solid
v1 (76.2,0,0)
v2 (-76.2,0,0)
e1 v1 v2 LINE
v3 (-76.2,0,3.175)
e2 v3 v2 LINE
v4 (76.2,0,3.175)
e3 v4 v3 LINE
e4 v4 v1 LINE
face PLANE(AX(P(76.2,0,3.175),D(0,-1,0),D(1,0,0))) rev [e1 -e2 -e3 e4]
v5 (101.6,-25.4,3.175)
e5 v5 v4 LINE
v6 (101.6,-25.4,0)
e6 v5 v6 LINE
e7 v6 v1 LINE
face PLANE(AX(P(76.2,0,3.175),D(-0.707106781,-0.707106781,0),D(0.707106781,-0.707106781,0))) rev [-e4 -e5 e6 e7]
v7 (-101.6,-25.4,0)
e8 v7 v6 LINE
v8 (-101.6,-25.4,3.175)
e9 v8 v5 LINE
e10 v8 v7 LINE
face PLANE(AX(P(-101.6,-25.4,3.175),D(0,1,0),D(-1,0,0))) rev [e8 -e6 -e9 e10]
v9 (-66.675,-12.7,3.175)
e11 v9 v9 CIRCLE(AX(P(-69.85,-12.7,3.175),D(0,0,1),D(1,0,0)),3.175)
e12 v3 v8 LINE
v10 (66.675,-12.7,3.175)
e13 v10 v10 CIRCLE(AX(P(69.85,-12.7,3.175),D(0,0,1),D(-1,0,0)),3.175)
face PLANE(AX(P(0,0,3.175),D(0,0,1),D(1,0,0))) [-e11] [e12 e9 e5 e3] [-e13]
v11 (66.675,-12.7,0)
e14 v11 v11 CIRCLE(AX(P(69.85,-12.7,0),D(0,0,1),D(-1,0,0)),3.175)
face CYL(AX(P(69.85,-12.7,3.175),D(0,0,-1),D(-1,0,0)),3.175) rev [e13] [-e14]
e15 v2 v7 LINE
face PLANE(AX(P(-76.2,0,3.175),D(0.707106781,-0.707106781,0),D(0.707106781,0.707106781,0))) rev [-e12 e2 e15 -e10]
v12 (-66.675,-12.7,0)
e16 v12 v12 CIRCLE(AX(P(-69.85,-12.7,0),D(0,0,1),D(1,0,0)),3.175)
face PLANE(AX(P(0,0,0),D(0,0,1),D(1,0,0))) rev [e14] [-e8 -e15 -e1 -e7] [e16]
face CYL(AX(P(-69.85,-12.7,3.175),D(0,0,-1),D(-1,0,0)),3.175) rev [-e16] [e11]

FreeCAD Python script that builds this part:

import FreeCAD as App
import Part
import Sketcher
from FreeCAD import Vector
Q = App.Units.Quantity

doc = App.newDocument("Part")
body = doc.addObject("PartDesign::Body", "Body")

# Sketch on XY plane
sketch1 = doc.addObject("Sketcher::SketchObject", "Sketch")
body.addObject(sketch1)
sketch1.AttachmentSupport = (doc.XY_Plane, [""])
sketch1.MapMode = "FlatFace"
sketch1.addGeometry(Part.LineSegment(Vector(76.2, 0, 0), Vector(-76.2, 0, 0)), False)
sketch1.addGeometry(Part.LineSegment(Vector(-76.2, 0, 0), Vector(-101.6, -25.4, 0)), False)
sketch1.addGeometry(Part.LineSegment(Vector(-101.6, -25.4, 0), Vector(101.6, -25.4, 0)), False)
sketch1.addGeometry(Part.LineSegment(Vector(101.6, -25.4, 0), Vector(76.2, 0, 0)), False)
sketch1.addGeometry(Part.Circle(Vector(-69.8, -12.7, 0), Vector(0, 0, 1), 3.2), False)
sketch1.addGeometry(Part.Circle(Vector(69.8, -12.7, 0), Vector(0, 0, 1), 3.2), False)
sketch1.addConstraint(Sketcher.Constraint("Coincident", 0, 2, 1, 1))
sketch1.addConstraint(Sketcher.Constraint("Coincident", 1, 2, 2, 1))
sketch1.addConstraint(Sketcher.Constraint("Coincident", 2, 2, 3, 1))
sketch1.addConstraint(Sketcher.Constraint("Coincident", 3, 2, 0, 1))
sketch1.addConstraint(Sketcher.Constraint("Horizontal", 0))
sketch1.addConstraint(Sketcher.Constraint("Horizontal", 2))
sketch1.addConstraint(Sketcher.Constraint("Equal", 4, 5))
sketch1.addConstraint(Sketcher.Constraint("Symmetric", 0, 2, 3, 2, -1, 1))
sketch1.addConstraint(Sketcher.Constraint("Symmetric", 4, 3, 5, 3, -2))
sketch1.addConstraint(Sketcher.Constraint("Perpendicular", 1, 3))
sketch1.addConstraint(Sketcher.Constraint("Equal", 1, 3))
sketch1.addConstraint(Sketcher.Constraint("Diameter", 4, Q("0.25 in")))
sketch1.addConstraint(Sketcher.Constraint("DistanceX", 0, 2, 0, 1, Q("6 in")))
sketch1.addConstraint(Sketcher.Constraint("DistanceX", 2, 1, 2, 2, Q("8 in")))
sketch1.addConstraint(Sketcher.Constraint("DistanceY", 4, 3, -1, 1, Q("0.5 in")))
sketch1.addConstraint(Sketcher.Constraint("DistanceX", 4, 3, 5, 3, Q("5.5 in")))
pad1 = doc.addObject("PartDesign::Pad", "Pad")
body.addObject(pad1)
pad1.Profile = sketch1
pad1.Length = Q("0.125 in")

doc.recompute()
